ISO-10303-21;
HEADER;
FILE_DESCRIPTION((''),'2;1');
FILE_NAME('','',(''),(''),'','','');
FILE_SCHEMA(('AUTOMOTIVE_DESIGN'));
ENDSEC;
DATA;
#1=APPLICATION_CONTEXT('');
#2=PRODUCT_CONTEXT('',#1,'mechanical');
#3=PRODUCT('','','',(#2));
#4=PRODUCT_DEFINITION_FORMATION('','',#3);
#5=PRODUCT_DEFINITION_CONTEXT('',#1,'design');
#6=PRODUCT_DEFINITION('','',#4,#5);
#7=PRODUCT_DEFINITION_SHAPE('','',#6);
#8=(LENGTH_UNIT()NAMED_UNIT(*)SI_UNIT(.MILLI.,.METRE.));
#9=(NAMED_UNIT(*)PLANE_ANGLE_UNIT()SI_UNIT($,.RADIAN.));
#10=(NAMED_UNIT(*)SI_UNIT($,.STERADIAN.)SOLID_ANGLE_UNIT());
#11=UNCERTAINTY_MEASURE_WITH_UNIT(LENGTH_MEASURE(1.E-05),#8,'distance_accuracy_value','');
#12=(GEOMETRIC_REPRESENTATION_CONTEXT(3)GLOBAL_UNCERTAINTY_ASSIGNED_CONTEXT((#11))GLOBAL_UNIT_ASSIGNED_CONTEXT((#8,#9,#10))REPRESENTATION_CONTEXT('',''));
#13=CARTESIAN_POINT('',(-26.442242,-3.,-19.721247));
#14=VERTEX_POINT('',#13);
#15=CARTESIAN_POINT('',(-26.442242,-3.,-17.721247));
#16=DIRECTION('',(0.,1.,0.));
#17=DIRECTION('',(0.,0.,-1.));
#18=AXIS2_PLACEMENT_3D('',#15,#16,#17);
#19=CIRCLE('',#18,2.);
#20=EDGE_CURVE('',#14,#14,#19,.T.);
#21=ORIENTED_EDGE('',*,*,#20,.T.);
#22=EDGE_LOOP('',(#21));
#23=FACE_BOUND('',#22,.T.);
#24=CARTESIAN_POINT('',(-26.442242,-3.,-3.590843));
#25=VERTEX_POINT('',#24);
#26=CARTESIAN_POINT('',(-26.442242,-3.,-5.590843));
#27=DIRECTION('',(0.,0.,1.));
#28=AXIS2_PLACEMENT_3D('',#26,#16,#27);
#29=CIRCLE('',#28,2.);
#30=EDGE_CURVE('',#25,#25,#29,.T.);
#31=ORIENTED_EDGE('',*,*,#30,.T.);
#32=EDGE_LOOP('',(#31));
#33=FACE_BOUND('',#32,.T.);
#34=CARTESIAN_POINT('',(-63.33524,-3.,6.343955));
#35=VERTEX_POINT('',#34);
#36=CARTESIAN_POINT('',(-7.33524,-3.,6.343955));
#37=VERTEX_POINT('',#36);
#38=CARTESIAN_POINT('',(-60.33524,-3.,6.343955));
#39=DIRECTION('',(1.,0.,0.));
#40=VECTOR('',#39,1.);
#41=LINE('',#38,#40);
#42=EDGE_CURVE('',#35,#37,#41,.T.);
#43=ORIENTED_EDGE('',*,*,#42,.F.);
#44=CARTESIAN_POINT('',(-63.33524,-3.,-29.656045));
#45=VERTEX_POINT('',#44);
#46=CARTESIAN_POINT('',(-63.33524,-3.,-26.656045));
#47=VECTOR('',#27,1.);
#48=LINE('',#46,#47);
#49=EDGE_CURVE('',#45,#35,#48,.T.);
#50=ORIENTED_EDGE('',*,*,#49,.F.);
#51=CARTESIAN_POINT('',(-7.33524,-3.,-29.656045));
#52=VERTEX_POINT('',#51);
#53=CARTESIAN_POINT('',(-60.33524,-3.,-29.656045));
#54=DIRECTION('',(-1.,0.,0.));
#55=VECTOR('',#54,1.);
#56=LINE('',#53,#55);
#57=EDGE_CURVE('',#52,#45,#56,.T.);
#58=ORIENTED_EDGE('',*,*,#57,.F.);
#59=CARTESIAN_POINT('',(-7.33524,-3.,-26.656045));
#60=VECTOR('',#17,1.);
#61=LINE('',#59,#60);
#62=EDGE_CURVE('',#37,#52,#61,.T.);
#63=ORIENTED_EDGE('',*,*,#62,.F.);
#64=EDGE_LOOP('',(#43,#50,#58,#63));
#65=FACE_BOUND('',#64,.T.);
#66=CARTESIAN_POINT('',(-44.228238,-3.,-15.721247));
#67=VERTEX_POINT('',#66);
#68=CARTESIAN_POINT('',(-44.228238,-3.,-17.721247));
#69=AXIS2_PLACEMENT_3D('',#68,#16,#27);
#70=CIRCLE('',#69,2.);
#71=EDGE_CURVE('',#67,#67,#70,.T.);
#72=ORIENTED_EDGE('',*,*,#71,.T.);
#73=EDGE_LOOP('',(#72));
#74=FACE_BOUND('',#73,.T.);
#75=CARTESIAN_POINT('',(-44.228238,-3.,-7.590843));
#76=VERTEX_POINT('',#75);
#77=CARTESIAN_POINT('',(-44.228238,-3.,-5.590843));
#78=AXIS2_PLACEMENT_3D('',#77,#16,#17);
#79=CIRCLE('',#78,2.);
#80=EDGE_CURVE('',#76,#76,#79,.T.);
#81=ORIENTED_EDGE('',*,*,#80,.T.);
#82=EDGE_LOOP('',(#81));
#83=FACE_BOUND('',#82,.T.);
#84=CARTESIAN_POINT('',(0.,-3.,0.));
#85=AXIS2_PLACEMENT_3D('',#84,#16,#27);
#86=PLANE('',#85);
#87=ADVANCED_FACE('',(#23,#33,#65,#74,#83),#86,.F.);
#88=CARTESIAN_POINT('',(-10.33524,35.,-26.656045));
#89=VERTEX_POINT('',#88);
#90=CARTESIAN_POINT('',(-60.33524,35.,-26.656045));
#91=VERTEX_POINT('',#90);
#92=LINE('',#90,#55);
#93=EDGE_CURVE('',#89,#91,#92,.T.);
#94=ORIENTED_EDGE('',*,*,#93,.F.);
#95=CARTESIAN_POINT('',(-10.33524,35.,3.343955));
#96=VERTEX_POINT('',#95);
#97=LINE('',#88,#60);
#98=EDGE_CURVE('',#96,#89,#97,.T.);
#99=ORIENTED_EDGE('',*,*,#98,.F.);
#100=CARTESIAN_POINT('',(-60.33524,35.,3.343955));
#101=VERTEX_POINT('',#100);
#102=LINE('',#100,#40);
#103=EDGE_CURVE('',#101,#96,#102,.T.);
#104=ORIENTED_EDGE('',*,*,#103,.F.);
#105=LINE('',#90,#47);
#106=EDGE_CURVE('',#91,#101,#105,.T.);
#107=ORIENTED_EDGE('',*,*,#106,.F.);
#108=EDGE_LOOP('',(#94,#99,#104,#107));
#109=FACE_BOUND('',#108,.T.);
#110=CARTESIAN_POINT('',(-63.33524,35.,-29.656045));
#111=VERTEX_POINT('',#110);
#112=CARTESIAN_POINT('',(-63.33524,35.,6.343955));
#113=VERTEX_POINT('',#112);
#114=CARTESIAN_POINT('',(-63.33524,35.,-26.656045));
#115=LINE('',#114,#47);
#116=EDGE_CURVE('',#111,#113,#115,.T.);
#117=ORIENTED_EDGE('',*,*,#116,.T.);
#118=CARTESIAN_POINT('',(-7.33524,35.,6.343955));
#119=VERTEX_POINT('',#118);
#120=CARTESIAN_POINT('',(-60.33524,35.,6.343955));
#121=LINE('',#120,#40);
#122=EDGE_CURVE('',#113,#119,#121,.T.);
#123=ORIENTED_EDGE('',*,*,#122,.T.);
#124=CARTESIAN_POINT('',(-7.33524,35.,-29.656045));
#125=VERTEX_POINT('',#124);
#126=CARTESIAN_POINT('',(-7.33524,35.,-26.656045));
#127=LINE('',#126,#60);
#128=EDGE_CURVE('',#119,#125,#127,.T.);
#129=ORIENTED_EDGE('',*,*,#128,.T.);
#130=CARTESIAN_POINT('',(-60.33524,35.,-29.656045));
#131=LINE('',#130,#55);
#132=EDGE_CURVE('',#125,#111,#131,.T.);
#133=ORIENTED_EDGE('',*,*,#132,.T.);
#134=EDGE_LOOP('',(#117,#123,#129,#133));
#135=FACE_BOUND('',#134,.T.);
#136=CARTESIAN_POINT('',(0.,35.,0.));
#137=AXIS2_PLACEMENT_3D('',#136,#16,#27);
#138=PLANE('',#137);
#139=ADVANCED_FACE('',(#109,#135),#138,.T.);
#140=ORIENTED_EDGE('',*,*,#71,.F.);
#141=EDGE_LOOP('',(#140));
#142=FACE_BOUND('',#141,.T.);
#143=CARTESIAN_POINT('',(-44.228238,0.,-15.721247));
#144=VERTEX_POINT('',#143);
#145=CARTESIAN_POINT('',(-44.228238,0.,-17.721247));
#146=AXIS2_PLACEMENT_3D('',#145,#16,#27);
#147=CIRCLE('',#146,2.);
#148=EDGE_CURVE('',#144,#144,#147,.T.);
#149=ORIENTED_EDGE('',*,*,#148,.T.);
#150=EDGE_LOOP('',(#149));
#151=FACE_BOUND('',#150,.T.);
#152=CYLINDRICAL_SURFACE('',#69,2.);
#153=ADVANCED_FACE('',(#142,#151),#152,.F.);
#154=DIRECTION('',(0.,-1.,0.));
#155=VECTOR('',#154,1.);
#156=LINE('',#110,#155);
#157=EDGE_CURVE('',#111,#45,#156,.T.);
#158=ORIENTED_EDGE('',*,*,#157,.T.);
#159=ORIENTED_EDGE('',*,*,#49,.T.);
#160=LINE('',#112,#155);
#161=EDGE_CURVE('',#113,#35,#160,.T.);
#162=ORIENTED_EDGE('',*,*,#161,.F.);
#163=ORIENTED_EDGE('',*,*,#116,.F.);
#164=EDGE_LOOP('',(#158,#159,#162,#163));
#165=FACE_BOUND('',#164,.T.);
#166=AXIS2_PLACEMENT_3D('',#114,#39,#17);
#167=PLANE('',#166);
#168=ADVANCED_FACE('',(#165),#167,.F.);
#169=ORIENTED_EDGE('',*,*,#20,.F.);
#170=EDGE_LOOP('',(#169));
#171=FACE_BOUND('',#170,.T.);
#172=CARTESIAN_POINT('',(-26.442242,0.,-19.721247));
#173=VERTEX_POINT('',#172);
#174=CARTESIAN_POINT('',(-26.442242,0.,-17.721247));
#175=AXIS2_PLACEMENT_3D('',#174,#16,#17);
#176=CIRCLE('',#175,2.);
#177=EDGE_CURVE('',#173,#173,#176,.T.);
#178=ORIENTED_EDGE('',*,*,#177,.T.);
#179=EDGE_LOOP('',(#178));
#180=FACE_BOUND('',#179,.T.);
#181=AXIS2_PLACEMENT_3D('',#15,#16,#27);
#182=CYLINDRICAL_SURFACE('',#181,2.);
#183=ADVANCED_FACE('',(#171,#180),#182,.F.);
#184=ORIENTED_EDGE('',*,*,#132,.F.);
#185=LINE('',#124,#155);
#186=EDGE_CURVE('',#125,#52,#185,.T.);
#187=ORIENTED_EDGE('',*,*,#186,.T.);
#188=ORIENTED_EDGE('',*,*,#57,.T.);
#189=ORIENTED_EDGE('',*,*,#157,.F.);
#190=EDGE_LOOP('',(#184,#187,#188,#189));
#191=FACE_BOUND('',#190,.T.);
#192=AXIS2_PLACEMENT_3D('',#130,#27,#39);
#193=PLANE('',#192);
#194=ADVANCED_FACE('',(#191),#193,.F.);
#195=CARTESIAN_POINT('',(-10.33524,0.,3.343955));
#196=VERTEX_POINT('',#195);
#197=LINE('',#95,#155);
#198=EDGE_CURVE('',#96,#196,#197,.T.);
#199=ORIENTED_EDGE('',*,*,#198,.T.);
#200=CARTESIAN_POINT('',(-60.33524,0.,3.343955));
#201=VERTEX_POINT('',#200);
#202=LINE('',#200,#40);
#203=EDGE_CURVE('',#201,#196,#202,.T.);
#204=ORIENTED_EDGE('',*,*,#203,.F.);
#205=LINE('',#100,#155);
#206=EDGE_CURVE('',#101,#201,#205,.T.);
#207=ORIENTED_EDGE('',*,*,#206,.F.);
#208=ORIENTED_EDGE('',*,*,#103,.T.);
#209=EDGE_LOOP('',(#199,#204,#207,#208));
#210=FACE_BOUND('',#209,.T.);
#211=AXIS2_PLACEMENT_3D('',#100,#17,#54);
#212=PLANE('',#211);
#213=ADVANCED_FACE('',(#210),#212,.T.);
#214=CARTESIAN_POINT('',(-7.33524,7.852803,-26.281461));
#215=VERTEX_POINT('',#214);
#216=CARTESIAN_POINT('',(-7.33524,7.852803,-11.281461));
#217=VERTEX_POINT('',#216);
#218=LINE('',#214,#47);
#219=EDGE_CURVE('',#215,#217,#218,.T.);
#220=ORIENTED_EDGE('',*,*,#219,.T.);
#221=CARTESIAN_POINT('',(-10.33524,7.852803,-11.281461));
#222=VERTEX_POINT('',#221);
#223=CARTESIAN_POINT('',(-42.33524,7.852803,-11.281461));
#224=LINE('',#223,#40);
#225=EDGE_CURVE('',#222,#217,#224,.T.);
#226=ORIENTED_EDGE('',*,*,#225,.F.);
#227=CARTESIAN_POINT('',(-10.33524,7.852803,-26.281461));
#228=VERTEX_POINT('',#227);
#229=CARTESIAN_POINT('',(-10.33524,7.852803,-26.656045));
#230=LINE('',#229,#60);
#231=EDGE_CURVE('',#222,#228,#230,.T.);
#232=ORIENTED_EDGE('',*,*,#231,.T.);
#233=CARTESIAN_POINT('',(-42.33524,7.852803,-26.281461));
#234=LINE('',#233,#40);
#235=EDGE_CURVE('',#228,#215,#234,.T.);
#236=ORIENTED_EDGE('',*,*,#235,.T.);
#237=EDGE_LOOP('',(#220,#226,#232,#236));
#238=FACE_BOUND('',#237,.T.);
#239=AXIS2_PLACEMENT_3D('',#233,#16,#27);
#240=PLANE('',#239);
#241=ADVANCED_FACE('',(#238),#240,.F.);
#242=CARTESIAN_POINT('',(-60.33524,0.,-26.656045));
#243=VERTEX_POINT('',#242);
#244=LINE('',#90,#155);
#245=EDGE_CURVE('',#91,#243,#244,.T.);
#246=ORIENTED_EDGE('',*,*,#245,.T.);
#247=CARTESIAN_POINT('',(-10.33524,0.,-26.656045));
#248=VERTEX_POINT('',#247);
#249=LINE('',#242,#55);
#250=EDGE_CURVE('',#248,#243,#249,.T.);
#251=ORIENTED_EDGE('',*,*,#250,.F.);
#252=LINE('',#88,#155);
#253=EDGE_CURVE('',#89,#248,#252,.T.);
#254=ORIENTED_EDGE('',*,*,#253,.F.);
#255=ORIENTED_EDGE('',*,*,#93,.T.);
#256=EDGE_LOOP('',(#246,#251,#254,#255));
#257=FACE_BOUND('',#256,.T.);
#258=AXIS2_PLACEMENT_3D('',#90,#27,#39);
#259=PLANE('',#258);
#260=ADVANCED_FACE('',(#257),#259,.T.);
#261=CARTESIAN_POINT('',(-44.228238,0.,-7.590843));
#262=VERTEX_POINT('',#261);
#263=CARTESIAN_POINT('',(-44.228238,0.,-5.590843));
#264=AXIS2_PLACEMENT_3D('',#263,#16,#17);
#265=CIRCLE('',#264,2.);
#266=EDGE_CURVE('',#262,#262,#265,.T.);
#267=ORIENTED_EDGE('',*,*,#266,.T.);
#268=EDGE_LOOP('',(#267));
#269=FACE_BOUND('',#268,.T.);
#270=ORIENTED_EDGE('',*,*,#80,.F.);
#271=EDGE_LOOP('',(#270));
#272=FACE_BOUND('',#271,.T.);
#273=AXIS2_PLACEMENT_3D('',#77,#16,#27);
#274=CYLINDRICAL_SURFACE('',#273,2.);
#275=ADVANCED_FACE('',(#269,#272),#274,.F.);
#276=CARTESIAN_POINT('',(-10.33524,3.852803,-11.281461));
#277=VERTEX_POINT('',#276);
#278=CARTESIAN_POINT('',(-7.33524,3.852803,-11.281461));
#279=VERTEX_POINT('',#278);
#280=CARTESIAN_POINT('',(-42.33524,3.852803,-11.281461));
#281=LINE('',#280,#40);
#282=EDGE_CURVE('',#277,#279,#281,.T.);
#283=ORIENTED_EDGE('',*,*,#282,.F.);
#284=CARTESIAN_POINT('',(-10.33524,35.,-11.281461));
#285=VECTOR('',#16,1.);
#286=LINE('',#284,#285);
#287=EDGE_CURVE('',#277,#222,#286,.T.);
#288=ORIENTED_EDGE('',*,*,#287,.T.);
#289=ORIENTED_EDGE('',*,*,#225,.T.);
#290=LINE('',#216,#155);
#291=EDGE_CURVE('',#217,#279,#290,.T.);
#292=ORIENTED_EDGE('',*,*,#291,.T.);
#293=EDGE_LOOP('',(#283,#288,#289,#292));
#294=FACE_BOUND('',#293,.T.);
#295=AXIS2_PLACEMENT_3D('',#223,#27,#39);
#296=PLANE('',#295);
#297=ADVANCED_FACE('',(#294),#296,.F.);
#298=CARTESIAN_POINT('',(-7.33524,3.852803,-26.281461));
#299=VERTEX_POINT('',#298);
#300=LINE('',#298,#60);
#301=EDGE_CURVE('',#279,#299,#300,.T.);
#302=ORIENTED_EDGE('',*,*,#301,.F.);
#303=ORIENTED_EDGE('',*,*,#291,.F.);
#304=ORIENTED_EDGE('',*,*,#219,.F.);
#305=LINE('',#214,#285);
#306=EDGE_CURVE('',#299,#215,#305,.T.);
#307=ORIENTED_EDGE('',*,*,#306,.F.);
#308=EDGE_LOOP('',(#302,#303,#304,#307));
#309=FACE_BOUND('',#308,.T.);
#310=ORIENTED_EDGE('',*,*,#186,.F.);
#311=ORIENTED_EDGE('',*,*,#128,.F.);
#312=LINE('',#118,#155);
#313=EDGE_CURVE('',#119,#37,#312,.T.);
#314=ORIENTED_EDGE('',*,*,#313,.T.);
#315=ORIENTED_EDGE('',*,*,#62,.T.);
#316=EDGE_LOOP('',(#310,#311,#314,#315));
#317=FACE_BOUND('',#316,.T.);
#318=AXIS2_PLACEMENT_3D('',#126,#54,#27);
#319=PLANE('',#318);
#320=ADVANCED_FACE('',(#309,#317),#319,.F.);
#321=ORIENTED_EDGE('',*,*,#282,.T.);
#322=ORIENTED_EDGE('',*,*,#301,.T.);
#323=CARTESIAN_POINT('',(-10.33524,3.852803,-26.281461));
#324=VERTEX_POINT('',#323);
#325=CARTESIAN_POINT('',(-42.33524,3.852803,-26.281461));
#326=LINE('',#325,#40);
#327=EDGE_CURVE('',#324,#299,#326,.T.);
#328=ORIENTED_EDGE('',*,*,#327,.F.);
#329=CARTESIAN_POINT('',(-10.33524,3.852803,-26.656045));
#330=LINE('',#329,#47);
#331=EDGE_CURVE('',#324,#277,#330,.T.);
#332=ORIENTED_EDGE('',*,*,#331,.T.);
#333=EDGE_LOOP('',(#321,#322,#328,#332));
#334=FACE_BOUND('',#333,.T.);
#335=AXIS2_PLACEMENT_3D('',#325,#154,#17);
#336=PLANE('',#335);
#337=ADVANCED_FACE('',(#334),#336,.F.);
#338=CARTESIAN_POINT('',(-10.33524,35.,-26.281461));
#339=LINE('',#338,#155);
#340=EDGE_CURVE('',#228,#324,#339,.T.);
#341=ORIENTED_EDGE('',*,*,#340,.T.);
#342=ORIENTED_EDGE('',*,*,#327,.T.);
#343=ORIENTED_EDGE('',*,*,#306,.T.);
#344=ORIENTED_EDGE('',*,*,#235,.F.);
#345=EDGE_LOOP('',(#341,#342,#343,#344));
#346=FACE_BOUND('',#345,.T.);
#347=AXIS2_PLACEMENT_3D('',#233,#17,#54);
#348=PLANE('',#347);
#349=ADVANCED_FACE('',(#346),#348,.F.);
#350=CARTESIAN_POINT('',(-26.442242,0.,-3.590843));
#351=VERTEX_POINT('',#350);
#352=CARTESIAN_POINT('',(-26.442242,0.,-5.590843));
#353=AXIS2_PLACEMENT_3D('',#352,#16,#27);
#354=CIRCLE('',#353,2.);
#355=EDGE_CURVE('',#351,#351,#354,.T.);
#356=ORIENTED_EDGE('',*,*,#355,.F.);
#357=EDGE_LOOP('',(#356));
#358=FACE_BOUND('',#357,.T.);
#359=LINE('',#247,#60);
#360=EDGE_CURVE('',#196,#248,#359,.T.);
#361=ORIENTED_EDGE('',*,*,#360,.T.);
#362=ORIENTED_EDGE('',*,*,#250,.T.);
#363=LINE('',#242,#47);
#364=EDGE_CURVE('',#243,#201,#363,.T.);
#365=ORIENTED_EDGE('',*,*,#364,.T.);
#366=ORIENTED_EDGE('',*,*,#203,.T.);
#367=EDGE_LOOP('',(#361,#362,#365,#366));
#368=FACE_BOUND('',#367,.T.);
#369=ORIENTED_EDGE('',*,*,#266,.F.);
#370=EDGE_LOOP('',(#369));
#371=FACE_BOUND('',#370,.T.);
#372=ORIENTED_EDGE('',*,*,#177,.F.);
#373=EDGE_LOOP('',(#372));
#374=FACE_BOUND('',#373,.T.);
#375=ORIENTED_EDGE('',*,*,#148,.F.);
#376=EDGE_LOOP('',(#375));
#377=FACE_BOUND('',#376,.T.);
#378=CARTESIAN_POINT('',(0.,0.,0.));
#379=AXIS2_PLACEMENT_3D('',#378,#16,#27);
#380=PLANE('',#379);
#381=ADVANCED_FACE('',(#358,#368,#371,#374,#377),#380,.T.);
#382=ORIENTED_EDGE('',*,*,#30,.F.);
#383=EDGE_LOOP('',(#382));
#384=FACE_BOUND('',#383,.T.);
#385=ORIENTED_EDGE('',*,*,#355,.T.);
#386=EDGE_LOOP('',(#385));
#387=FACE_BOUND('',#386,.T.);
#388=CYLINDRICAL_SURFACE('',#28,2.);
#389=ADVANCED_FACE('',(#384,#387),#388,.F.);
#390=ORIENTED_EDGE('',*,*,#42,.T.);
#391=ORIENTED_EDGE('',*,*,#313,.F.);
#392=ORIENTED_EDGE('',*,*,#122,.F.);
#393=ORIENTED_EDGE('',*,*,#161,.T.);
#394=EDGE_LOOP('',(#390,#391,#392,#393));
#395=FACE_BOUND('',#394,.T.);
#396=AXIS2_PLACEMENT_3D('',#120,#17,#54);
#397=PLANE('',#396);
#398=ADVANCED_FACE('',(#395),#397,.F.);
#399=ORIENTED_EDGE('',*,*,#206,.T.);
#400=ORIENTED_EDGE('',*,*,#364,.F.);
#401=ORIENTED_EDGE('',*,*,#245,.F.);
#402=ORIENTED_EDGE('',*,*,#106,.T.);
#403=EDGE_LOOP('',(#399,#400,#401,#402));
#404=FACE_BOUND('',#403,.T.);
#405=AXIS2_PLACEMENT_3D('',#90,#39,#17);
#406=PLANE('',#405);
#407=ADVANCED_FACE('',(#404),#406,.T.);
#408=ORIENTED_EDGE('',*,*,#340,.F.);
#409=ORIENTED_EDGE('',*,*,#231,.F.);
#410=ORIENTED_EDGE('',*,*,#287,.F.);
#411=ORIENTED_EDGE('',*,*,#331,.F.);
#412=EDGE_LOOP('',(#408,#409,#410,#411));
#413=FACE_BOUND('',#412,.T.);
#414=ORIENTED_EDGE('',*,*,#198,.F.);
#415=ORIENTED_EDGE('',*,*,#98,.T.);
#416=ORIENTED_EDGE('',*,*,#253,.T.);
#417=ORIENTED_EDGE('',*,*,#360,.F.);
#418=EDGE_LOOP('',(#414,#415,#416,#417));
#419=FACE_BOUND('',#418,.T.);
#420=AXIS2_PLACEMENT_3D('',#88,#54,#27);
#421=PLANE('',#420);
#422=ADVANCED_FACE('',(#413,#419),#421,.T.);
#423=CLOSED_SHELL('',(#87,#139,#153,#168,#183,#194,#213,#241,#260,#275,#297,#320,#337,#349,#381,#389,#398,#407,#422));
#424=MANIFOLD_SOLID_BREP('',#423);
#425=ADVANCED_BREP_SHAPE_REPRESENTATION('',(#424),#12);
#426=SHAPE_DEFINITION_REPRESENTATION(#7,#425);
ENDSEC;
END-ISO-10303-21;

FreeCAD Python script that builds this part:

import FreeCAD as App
import Part
import Sketcher

V = App.Vector
Q = App.Units.Quantity


def faces_at(feature, points):
    """Names of the faces that lie closest to the given points."""
    faces = feature.Shape.Faces
    near = lambda p: min(range(len(faces)), key=lambda i: faces[i].distToShape(Part.Vertex(*p))[0])
    return sorted({f"Face{near(p) + 1}" for p in points})

doc = App.newDocument("Part")
body = doc.addObject("PartDesign::Body", "Body")

sketch1 = body.newObject("Sketcher::SketchObject", "Sketch")
sketch1.AttachmentSupport = (doc.getObject("XZ_Plane"), [""])
sketch1.MapMode = "FlatFace"
sketch1.addGeometry([
    Part.LineSegment(V(-60, -27, 0), V(-60, 3, 0)),
    Part.LineSegment(V(-60, 3, 0), V(-10, 3, 0)),
    Part.LineSegment(V(-10, 3, 0), V(-10, -27, 0)),
    Part.LineSegment(V(-10, -27, 0), V(-60, -27, 0)),
], False)
sketch1.addConstraint([
    Sketcher.Constraint("Coincident", 0, 2, 1, 1),
    Sketcher.Constraint("Coincident", 1, 2, 2, 1),
    Sketcher.Constraint("Coincident", 2, 2, 3, 1),
    Sketcher.Constraint("Coincident", 3, 2, 0, 1),
    Sketcher.Constraint("Vertical", 0),
    Sketcher.Constraint("Horizontal", 1),
    Sketcher.Constraint("Vertical", 2),
    Sketcher.Constraint("Horizontal", 3),
    Sketcher.Constraint("DistanceX", 1, 1, 1, 2, Q("50 mm")),
    Sketcher.Constraint("DistanceY", 0, 1, 0, 2, Q("30 mm")),
    Sketcher.Constraint("DistanceX", 0, 2, -1, 1, Q("60.33524 mm")),
    Sketcher.Constraint("DistanceY", -1, 1, 0, 2, Q("3.343955 mm")),
])
pad1 = body.newObject("PartDesign::Pad", "Pad")
pad1.Profile = sketch1
pad1.Length = 35
pad1.Reversed = True
doc.recompute()

thickness = body.newObject("PartDesign::Thickness", "Thickness")
thickness.Base = (pad1, faces_at(pad1, [(-35.335, 35, -11.656)]))
thickness.Value = 3
thickness.Reversed = False
thickness.Join = "Intersection"

sketch2 = body.newObject("Sketcher::SketchObject", "Sketch001")
sketch2.AttachmentSupport = (doc.getObject("YZ_Plane"), [""])
sketch2.MapMode = "FlatFace"
sketch2.AttachmentOffset = App.Placement(V(0, 0, -7.33524), App.Rotation())
sketch2.addGeometry([
    Part.LineSegment(V(7.9, -11.3, 0), V(3.9, -11.3, 0)),
    Part.LineSegment(V(3.9, -11.3, 0), V(3.9, -26.3, 0)),
    Part.LineSegment(V(3.9, -26.3, 0), V(7.9, -26.3, 0)),
    Part.LineSegment(V(7.9, -26.3, 0), V(7.9, -11.3, 0)),
], False)
sketch2.addConstraint([
    Sketcher.Constraint("Coincident", 0, 2, 1, 1),
    Sketcher.Constraint("Coincident", 1, 2, 2, 1),
    Sketcher.Constraint("Coincident", 2, 2, 3, 1),
    Sketcher.Constraint("Coincident", 3, 2, 0, 1),
    Sketcher.Constraint("Horizontal", 0),
    Sketcher.Constraint("Vertical", 1),
    Sketcher.Constraint("Horizontal", 2),
    Sketcher.Constraint("Vertical", 3),
    Sketcher.Constraint("DistanceX", 0, 2, 0, 1, Q("4 mm")),
    Sketcher.Constraint("DistanceY", 1, 2, 1, 1, Q("15 mm")),
    Sketcher.Constraint("DistanceY", 0, 2, -1, 1, Q("11.281461 mm")),
    Sketcher.Constraint("DistanceX", -1, 1, 0, 2, Q("3.852803 mm")),
])
pocket1 = body.newObject("PartDesign::Pocket", "Pocket")
pocket1.Profile = sketch2
pocket1.Length = 35

sketch3 = body.newObject("Sketcher::SketchObject", "Sketch002")
sketch3.AttachmentSupport = (doc.getObject("XZ_Plane"), [""])
sketch3.MapMode = "FlatFace"
sketch3.addGeometry([
    Part.Circle(V(-44.2, -17.7, 0), V(0, 0, 1), 2),
    Part.Circle(V(-44.2, -5.6, 0), V(0, 0, 1), 2),
    Part.Circle(V(-26.4, -5.6, 0), V(0, 0, 1), 2),
    Part.Circle(V(-26.4, -17.7, 0), V(0, 0, 1), 2),
], False)
sketch3.addConstraint([
    Sketcher.Constraint("Equal", 0, 1),
    Sketcher.Constraint("Equal", 1, 2),
    Sketcher.Constraint("Equal", 2, 3),
    Sketcher.Constraint("Horizontal", 1, 3, 2, 3),
    Sketcher.Constraint("Horizontal", 0, 3, 3, 3),
    Sketcher.Constraint("Vertical", 0, 3, 1, 3),
    Sketcher.Constraint("Vertical", 2, 3, 3, 3),
    Sketcher.Constraint("Diameter", 0, Q("4 mm")),
    Sketcher.Constraint("DistanceX", 0, 3, -1, 1, Q("44.228238 mm")),
    Sketcher.Constraint("DistanceY", 0, 3, -1, 1, Q("17.721247 mm")),
    Sketcher.Constraint("DistanceY", 1, 3, -1, 1, Q("5.590843 mm")),
    Sketcher.Constraint("DistanceX", 2, 3, -1, 1, Q("26.442242 mm")),
])
pocket2 = body.newObject("PartDesign::Pocket", "Pocket001")
pocket2.Profile = sketch3
pocket2.Type = "ThroughAll"
pocket2.Reversed = True

doc.recompute()
